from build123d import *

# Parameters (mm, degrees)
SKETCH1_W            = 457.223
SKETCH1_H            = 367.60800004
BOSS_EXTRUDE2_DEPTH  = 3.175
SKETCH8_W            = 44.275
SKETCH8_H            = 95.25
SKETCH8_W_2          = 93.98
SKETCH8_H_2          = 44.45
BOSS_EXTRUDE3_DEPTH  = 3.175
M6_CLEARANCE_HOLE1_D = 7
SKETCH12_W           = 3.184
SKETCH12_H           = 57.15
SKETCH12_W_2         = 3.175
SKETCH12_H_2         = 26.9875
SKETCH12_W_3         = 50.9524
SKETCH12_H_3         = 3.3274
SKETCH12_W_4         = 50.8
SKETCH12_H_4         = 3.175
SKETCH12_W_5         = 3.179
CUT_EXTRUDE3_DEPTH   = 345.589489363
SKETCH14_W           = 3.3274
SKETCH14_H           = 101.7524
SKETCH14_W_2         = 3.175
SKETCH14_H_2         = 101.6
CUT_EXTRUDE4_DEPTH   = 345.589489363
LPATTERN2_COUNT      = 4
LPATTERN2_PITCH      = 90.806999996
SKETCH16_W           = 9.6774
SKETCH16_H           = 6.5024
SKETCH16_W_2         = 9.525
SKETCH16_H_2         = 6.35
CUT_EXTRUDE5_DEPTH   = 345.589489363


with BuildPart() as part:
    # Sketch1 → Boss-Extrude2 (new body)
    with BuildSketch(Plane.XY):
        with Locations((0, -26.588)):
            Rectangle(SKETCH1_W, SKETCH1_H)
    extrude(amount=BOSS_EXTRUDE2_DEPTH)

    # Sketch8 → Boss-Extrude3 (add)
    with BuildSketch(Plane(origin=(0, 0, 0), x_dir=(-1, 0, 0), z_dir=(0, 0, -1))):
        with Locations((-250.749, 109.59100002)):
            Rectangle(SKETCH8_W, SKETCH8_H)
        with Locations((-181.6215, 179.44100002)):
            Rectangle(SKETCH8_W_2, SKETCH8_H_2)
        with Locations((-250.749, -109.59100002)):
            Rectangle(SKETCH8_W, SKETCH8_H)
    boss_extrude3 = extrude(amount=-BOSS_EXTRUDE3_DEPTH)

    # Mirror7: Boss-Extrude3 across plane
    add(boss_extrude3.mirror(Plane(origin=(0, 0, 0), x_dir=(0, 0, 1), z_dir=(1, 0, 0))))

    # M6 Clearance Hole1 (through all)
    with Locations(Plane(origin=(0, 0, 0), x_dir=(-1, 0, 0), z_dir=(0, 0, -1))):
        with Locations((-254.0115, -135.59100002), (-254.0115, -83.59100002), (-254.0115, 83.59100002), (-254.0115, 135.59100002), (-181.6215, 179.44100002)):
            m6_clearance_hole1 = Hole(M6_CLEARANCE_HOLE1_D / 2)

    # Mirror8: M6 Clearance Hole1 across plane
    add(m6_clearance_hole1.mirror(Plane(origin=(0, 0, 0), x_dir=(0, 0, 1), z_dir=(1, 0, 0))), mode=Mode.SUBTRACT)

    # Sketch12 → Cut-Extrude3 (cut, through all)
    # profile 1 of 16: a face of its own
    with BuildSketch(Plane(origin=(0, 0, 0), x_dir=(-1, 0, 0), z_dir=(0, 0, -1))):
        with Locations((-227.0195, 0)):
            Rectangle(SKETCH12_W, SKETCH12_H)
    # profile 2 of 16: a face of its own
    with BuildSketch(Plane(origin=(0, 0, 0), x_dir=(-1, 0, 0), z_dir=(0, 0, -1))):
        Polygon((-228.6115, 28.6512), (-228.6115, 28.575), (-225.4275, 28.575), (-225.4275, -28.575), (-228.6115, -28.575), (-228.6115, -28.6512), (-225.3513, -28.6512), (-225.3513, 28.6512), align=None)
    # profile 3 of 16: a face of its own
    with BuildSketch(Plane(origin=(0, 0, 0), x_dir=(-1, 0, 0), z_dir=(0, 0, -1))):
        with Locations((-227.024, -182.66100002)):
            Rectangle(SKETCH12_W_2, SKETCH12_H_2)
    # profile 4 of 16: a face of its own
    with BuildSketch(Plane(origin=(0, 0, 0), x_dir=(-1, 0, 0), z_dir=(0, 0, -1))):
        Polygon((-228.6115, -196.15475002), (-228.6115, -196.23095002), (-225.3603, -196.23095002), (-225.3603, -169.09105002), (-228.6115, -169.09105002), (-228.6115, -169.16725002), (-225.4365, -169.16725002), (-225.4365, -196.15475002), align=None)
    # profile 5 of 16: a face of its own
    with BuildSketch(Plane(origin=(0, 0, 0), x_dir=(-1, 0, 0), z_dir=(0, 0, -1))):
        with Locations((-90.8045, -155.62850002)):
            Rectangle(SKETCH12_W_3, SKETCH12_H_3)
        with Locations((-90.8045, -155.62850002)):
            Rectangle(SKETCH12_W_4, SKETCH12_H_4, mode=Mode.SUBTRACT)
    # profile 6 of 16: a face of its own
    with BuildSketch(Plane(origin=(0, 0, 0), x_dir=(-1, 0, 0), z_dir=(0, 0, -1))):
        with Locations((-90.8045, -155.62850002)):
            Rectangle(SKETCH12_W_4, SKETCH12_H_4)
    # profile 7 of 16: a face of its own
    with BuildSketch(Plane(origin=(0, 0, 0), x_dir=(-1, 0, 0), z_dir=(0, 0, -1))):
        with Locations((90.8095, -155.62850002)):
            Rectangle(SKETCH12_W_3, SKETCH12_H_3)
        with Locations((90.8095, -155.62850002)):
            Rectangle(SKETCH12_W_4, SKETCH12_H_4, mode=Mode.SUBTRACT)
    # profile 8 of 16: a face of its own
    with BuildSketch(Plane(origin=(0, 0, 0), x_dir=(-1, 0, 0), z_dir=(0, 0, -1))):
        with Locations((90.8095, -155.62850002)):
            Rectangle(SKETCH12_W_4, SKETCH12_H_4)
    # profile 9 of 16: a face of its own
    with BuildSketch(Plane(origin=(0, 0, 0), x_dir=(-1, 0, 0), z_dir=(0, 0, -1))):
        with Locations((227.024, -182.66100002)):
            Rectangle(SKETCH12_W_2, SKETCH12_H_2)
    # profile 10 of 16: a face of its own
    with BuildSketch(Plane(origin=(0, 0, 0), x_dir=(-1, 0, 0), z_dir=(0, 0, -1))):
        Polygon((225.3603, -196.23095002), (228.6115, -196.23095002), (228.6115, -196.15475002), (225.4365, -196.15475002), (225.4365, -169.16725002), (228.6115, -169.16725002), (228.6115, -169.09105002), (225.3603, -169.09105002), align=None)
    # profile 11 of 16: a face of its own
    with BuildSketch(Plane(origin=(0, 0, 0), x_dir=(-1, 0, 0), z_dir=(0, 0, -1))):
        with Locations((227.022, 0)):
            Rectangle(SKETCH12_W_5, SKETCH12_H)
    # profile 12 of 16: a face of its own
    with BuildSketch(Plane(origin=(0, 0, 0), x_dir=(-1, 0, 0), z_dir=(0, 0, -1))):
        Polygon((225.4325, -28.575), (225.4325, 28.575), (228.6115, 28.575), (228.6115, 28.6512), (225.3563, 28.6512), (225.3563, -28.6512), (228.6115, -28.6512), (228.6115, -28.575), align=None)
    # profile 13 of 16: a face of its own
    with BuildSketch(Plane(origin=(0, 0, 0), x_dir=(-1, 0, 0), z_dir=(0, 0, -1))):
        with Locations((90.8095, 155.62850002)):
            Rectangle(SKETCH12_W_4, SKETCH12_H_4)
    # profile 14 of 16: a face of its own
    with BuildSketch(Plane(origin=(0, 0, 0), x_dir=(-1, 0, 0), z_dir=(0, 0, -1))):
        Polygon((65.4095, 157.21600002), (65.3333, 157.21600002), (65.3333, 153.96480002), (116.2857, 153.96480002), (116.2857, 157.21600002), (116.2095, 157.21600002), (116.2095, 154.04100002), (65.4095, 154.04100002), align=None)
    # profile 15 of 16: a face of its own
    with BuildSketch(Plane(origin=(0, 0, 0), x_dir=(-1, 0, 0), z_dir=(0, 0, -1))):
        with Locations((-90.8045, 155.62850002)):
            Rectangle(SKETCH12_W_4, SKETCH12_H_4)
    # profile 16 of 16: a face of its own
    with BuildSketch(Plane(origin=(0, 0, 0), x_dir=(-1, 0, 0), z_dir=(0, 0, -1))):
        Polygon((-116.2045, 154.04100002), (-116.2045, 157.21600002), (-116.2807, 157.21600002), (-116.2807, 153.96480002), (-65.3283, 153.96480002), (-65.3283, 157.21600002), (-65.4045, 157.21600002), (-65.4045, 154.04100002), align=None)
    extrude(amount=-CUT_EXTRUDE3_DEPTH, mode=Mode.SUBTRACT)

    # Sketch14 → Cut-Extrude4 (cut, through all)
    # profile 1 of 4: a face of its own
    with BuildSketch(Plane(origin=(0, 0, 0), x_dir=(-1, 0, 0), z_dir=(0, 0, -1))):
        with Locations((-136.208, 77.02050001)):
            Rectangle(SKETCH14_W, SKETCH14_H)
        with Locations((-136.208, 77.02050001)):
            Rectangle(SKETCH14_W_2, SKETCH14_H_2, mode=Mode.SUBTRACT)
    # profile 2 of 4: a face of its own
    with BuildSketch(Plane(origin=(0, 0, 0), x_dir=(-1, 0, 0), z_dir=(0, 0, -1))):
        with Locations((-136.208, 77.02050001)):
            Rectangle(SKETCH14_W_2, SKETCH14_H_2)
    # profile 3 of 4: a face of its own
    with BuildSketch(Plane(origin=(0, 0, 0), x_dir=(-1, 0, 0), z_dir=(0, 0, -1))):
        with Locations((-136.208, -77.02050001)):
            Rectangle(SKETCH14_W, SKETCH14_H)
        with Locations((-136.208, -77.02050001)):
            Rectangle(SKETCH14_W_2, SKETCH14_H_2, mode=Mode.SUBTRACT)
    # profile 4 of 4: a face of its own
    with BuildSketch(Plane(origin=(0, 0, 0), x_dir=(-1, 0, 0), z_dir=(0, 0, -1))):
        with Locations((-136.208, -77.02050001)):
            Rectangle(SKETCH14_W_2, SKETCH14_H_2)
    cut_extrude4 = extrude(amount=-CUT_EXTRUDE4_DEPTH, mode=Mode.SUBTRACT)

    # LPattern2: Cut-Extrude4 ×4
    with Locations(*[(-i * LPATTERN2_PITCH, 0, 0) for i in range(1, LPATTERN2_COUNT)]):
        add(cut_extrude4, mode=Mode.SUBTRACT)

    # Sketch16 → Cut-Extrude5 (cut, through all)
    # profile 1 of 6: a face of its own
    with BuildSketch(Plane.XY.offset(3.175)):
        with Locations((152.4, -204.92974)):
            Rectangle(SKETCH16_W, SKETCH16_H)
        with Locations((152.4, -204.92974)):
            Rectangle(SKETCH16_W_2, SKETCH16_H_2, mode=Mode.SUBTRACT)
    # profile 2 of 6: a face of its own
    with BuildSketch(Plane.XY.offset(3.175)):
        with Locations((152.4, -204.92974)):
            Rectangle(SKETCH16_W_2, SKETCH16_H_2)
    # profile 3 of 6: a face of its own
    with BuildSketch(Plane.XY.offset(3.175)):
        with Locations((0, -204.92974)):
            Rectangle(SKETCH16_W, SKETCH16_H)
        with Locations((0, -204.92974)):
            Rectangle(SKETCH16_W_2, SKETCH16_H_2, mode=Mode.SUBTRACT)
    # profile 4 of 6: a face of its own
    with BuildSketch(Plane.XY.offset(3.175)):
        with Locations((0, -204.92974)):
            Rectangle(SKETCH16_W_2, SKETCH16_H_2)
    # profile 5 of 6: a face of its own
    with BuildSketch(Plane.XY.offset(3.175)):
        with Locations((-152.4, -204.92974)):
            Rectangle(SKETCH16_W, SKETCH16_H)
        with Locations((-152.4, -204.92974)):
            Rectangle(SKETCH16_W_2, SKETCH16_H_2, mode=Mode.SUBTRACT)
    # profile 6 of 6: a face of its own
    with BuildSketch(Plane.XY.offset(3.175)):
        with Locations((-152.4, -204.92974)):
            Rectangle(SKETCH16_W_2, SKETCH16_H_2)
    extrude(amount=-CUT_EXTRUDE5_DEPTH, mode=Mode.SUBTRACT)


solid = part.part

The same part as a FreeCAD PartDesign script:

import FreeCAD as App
import Part
import Sketcher
from FreeCAD import Vector
Q = App.Units.Quantity

doc = App.newDocument("Part")
body = doc.addObject("PartDesign::Body", "Body")

sketch1 = doc.addObject("Sketcher::SketchObject", "Sketch")
body.addObject(sketch1)
sketch1.AttachmentSupport = (doc.XY_Plane, [""])
sketch1.MapMode = "FlatFace"
sketch1.addGeometry([
    Part.LineSegment(Vector(-229, 157, 0), Vector(-229, -210, 0)),
    Part.LineSegment(Vector(-229, -210, 0), Vector(229, -210, 0)),
    Part.LineSegment(Vector(229, -210, 0), Vector(229, 157, 0)),
    Part.LineSegment(Vector(229, 157, 0), Vector(-229, 157, 0)),
], False)
sketch1.addConstraint([
    Sketcher.Constraint("Coincident", 0, 2, 1, 1),
    Sketcher.Constraint("Coincident", 1, 2, 2, 1),
    Sketcher.Constraint("Coincident", 2, 2, 3, 1),
    Sketcher.Constraint("Coincident", 3, 2, 0, 1),
    Sketcher.Constraint("Vertical", 0),
    Sketcher.Constraint("Horizontal", 1),
    Sketcher.Constraint("Vertical", 2),
    Sketcher.Constraint("Horizontal", 3),
    Sketcher.Constraint("DistanceX", 1, 1, 1, 2, Q("457.223 mm")),
    Sketcher.Constraint("DistanceY", 0, 2, 0, 1, Q("367.608 mm")),
    Sketcher.Constraint("DistanceX", 0, 2, -1, 1, Q("228.6115 mm")),
    Sketcher.Constraint("DistanceY", 0, 2, -1, 1, Q("210.392 mm")),
])
pad1 = doc.addObject("PartDesign::Pad", "Pad")
body.addObject(pad1)
pad1.Profile = sketch1
pad1.Length = Q("0.125 in")

sketch2 = doc.addObject("Sketcher::SketchObject", "Sketch001")
body.addObject(sketch2)
sketch2.AttachmentSupport = (doc.XY_Plane, [""])
sketch2.MapMode = "FlatFace"
sketch2.addGeometry([
    Part.LineSegment(Vector(273, 157, 0), Vector(273, 62, 0)),
    Part.LineSegment(Vector(273, 62, 0), Vector(229, 62, 0)),
    Part.LineSegment(Vector(229, 62, 0), Vector(229, 157, 0)),
    Part.LineSegment(Vector(229, 157, 0), Vector(273, 157, 0)),
    Part.LineSegment(Vector(229, 202, 0), Vector(229, 157, 0)),
    Part.LineSegment(Vector(229, 157, 0), Vector(135, 157, 0)),
    Part.LineSegment(Vector(135, 157, 0), Vector(135, 202, 0)),
    Part.LineSegment(Vector(135, 202, 0), Vector(229, 202, 0)),
    Part.LineSegment(Vector(273, -62, 0), Vector(273, -157, 0)),
    Part.LineSegment(Vector(273, -157, 0), Vector(229, -157, 0)),
    Part.LineSegment(Vector(229, -157, 0), Vector(229, -62, 0)),
    Part.LineSegment(Vector(229, -62, 0), Vector(273, -62, 0)),
], False)
sketch2.addConstraint([
    Sketcher.Constraint("Coincident", 0, 2, 1, 1),
    Sketcher.Constraint("Coincident", 1, 2, 2, 1),
    Sketcher.Constraint("Coincident", 2, 2, 3, 1),
    Sketcher.Constraint("Coincident", 3, 2, 0, 1),
    Sketcher.Constraint("Coincident", 4, 2, 5, 1),
    Sketcher.Constraint("Coincident", 5, 2, 6, 1),
    Sketcher.Constraint("Coincident", 6, 2, 7, 1),
    Sketcher.Constraint("Coincident", 7, 2, 4, 1),
    Sketcher.Constraint("Coincident", 8, 2, 9, 1),
    Sketcher.Constraint("Coincident", 9, 2, 10, 1),
    Sketcher.Constraint("Coincident", 10, 2, 11, 1),
    Sketcher.Constraint("Coincident", 11, 2, 8, 1),
    Sketcher.Constraint("Vertical", 0),
    Sketcher.Constraint("Horizontal", 1),
    Sketcher.Constraint("Vertical", 2),
    Sketcher.Constraint("Horizontal", 3),
    Sketcher.Constraint("Vertical", 4),
    Sketcher.Constraint("Horizontal", 5),
    Sketcher.Constraint("Vertical", 6),
    Sketcher.Constraint("Horizontal", 7),
    Sketcher.Constraint("Vertical", 8),
    Sketcher.Constraint("Horizontal", 9),
    Sketcher.Constraint("Vertical", 10),
    Sketcher.Constraint("Horizontal", 11),
    Sketcher.Constraint("Coincident", 4, 2, 2, 2),
    Sketcher.Constraint("Symmetric", 3, 2, 8, 2, -1),
    Sketcher.Constraint("Symmetric", 1, 2, 10, 2, -1),
    Sketcher.Constraint("DistanceX", 5, 2, 5, 1, Q("3.7 in")),
    Sketcher.Constraint("DistanceY", 0, 2, 0, 1, Q("3.75 in")),
    Sketcher.Constraint("DistanceY", 4, 2, 4, 1, Q("1.75 in")),
    Sketcher.Constraint("DistanceX", 1, 2, 1, 1, Q("44.275 mm")),
    Sketcher.Constraint("DistanceX", -1, 1, 0, 2, Q("272.8865 mm")),
    Sketcher.Constraint("DistanceY", -1, 1, 0, 2, Q("61.966 mm")),
])
pad2 = doc.addObject("PartDesign::Pad", "Pad001")
body.addObject(pad2)
pad2.Profile = sketch2
pad2.Length = Q("0.125 in")
doc.recompute()

mirrored = doc.addObject("PartDesign::Mirrored", "Mirrored")
body.addObject(mirrored)
mirrored.Originals = [pad2]
mirrored.MirrorPlane = (doc.YZ_Plane, [""])
body.Tip = mirrored

sketch3 = doc.addObject("Sketcher::SketchObject", "Sketch002")
body.addObject(sketch3)
sketch3.AttachmentSupport = (doc.XY_Plane, [""])
sketch3.MapMode = "FlatFace"
sketch3.addGeometry([
    Part.Circle(Vector(254, -135.6, 0), Vector(0, 0, 1), 3.5),
    Part.Circle(Vector(254, -83.6, 0), Vector(0, 0, 1), 3.5),
    Part.Circle(Vector(254, 83.6, 0), Vector(0, 0, 1), 3.5),
    Part.Circle(Vector(254, 135.6, 0), Vector(0, 0, 1), 3.5),
    Part.Circle(Vector(181.6, 179.4, 0), Vector(0, 0, 1), 3.5),
], False)
sketch3.addConstraint([
    Sketcher.Constraint("Equal", 0, 1),
    Sketcher.Constraint("Equal", 1, 2),
    Sketcher.Constraint("Equal", 2, 3),
    Sketcher.Constraint("Equal", 3, 4),
    Sketcher.Constraint("Symmetric", 1, 3, 2, 3, -1),
    Sketcher.Constraint("Symmetric", 0, 3, 3, 3, -1),
    Sketcher.Constraint("Vertical", 0, 3, 1, 3),
    Sketcher.Constraint("Diameter", 0, Q("7 mm")),
    Sketcher.Constraint("DistanceX", 4, 3, 3, 3, Q("2.85 in")),
    Sketcher.Constraint("DistanceX", -1, 1, 0, 3, Q("254.0115 mm")),
    Sketcher.Constraint("DistanceY", 0, 3, -1, 1, Q("135.591 mm")),
    Sketcher.Constraint("DistanceY", 1, 3, -1, 1, Q("83.591 mm")),
    Sketcher.Constraint("DistanceY", -1, 1, 4, 3, Q("179.441 mm")),
])
doc.recompute()
hole = doc.addObject("PartDesign::Hole", "Hole")
body.addObject(hole)
hole.Profile = sketch3
hole.ThreadType = "None"
hole.Diameter = 7
hole.DepthType = "ThroughAll"
hole.Reversed = True
doc.recompute()

mirrored2 = doc.addObject("PartDesign::Mirrored", "Mirrored001")
body.addObject(mirrored2)
mirrored2.Originals = [hole]
mirrored2.MirrorPlane = (doc.YZ_Plane, [""])
body.Tip = mirrored2

sketch4 = doc.addObject("Sketcher::SketchObject", "Sketch003")
body.addObject(sketch4)
sketch4.AttachmentSupport = (doc.XY_Plane, [""])
sketch4.MapMode = "FlatFace"
sketch4.addGeometry([
    Part.LineSegment(Vector(228.6, -28.7, 0), Vector(225.4, -28.7, 0)),
    Part.LineSegment(Vector(225.4, -28.7, 0), Vector(225.4, 28.7, 0)),
    Part.LineSegment(Vector(225.4, 28.7, 0), Vector(228.6, 28.7, 0)),
    Part.LineSegment(Vector(228.6, 28.7, 0), Vector(228.6, -28.7, 0)),
    Part.LineSegment(Vector(228.6, -196.2, 0), Vector(225.4, -196.2, 0)),
    Part.LineSegment(Vector(225.4, -196.2, 0), Vector(225.4, -169.1, 0)),
    Part.LineSegment(Vector(225.4, -169.1, 0), Vector(228.6, -169.1, 0)),
    Part.LineSegment(Vector(228.6, -169.1, 0), Vector(228.6, -196.2, 0)),
    Part.LineSegment(Vector(116.3, -154, 0), Vector(116.3, -157.3, 0)),
    Part.LineSegment(Vector(116.3, -157.3, 0), Vector(65.3, -157.3, 0)),
    Part.LineSegment(Vector(65.3, -157.3, 0), Vector(65.3, -154, 0)),
    Part.LineSegment(Vector(65.3, -154, 0), Vector(116.3, -154, 0)),
    Part.LineSegment(Vector(-65.3, -154, 0), Vector(-65.3, -157.3, 0)),
    Part.LineSegment(Vector(-65.3, -157.3, 0), Vector(-116.3, -157.3, 0)),
    Part.LineSegment(Vector(-116.3, -157.3, 0), Vector(-116.3, -154, 0)),
    Part.LineSegment(Vector(-116.3, -154, 0), Vector(-65.3, -154, 0)),
    Part.LineSegment(Vector(-228.6, -169.1, 0), Vector(-225.4, -169.1, 0)),
    Part.LineSegment(Vector(-225.4, -169.1, 0), Vector(-225.4, -196.2, 0)),
    Part.LineSegment(Vector(-225.4, -196.2, 0), Vector(-228.6, -196.2, 0)),
    Part.LineSegment(Vector(-228.6, -196.2, 0), Vector(-228.6, -169.1, 0)),
    Part.LineSegment(Vector(-228.6, 28.7, 0), Vector(-225.4, 28.7, 0)),
    Part.LineSegment(Vector(-225.4, 28.7, 0), Vector(-225.4, -28.7, 0)),
    Part.LineSegment(Vector(-225.4, -28.7, 0), Vector(-228.6, -28.7, 0)),
    Part.LineSegment(Vector(-228.6, -28.7, 0), Vector(-228.6, 28.7, 0)),
    Part.LineSegment(Vector(-65.3, 157.2, 0), Vector(-65.3, 154, 0)),
    Part.LineSegment(Vector(-65.3, 154, 0), Vector(-116.3, 154, 0)),
    Part.LineSegment(Vector(-116.3, 154, 0), Vector(-116.3, 157.2, 0)),
    Part.LineSegment(Vector(-116.3, 157.2, 0), Vector(-65.3, 157.2, 0)),
    Part.LineSegment(Vector(116.3, 157.2, 0), Vector(116.3, 154, 0)),
    Part.LineSegment(Vector(116.3, 154, 0), Vector(65.3, 154, 0)),
    Part.LineSegment(Vector(65.3, 154, 0), Vector(65.3, 157.2, 0)),
    Part.LineSegment(Vector(65.3, 157.2, 0), Vector(116.3, 157.2, 0)),
], False)
sketch4.addConstraint([
    Sketcher.Constraint("Coincident", 0, 2, 1, 1),
    Sketcher.Constraint("Coincident", 1, 2, 2, 1),
    Sketcher.Constraint("Coincident", 2, 2, 3, 1),
    Sketcher.Constraint("Coincident", 3, 2, 0, 1),
    Sketcher.Constraint("Coincident", 4, 2, 5, 1),
    Sketcher.Constraint("Coincident", 5, 2, 6, 1),
    Sketcher.Constraint("Coincident", 6, 2, 7, 1),
    Sketcher.Constraint("Coincident", 7, 2, 4, 1),
    Sketcher.Constraint("Coincident", 8, 2, 9, 1),
    Sketcher.Constraint("Coincident", 9, 2, 10, 1),
    Sketcher.Constraint("Coincident", 10, 2, 11, 1),
    Sketcher.Constraint("Coincident", 11, 2, 8, 1),
    Sketcher.Constraint("Coincident", 12, 2, 13, 1),
    Sketcher.Constraint("Coincident", 13, 2, 14, 1),
    Sketcher.Constraint("Coincident", 14, 2, 15, 1),
    Sketcher.Constraint("Coincident", 15, 2, 12, 1),
    Sketcher.Constraint("Coincident", 16, 2, 17, 1),
    Sketcher.Constraint("Coincident", 17, 2, 18, 1),
    Sketcher.Constraint("Coincident", 18, 2, 19, 1),
    Sketcher.Constraint("Coincident", 19, 2, 16, 1),
    Sketcher.Constraint("Coincident", 20, 2, 21, 1),
    Sketcher.Constraint("Coincident", 21, 2, 22, 1),
    Sketcher.Constraint("Coincident", 22, 2, 23, 1),
    Sketcher.Constraint("Coincident", 23, 2, 20, 1),
    Sketcher.Constraint("Coincident", 24, 2, 25, 1),
    Sketcher.Constraint("Coincident", 25, 2, 26, 1),
    Sketcher.Constraint("Coincident", 26, 2, 27, 1),
    Sketcher.Constraint("Coincident", 27, 2, 24, 1),
    Sketcher.Constraint("Coincident", 28, 2, 29, 1),
    Sketcher.Constraint("Coincident", 29, 2, 30, 1),
    Sketcher.Constraint("Coincident", 30, 2, 31, 1),
    Sketcher.Constraint("Coincident", 31, 2, 28, 1),
    Sketcher.Constraint("Horizontal", 0),
    Sketcher.Constraint("Vertical", 1),
    Sketcher.Constraint("Horizontal", 2),
    Sketcher.Constraint("Vertical", 3),
    Sketcher.Constraint("Horizontal", 4),
    Sketcher.Constraint("Vertical", 5),
    Sketcher.Constraint("Horizontal", 6),
    Sketcher.Constraint("Vertical", 7),
    Sketcher.Constraint("Vertical", 8),
    Sketcher.Constraint("Horizontal", 9),
    Sketcher.Constraint("Vertical", 10),
    Sketcher.Constraint("Horizontal", 11),
    Sketcher.Constraint("Vertical", 12),
    Sketcher.Constraint("Horizontal", 13),
    Sketcher.Constraint("Vertical", 14),
    Sketcher.Constraint("Horizontal", 15),
    Sketcher.Constraint("Horizontal", 16),
    Sketcher.Constraint("Vertical", 17),
    Sketcher.Constraint("Horizontal", 18),
    Sketcher.Constraint("Vertical", 19),
    Sketcher.Constraint("Horizontal", 20),
    Sketcher.Constraint("Vertical", 21),
    Sketcher.Constraint("Horizontal", 22),
    Sketcher.Constraint("Vertical", 23),
    Sketcher.Constraint("Vertical", 24),
    Sketcher.Constraint("Horizontal", 25),
    Sketcher.Constraint("Vertical", 26),
    Sketcher.Constraint("Horizontal", 27),
    Sketcher.Constraint("Vertical", 28),
    Sketcher.Constraint("Horizontal", 29),
    Sketcher.Constraint("Vertical", 30),
    Sketcher.Constraint("Horizontal", 31),
    Sketcher.Constraint("Symmetric", 2, 2, 22, 2, -1, 1),
    Sketcher.Constraint("Symmetric", 5, 2, 16, 2, -2),
    Sketcher.Constraint("Symmetric", 7, 2, 18, 2, -2),
    Sketcher.Constraint("Symmetric", 15, 2, 24, 2, -1),
    Sketcher.Constraint("Symmetric", 11, 2, 28, 2, -1),
    Sketcher.Constraint("Horizontal", 9, 2, 12, 2),
    Sketcher.Constraint("Horizontal", 11, 2, 14, 2),
    Sketcher.Constraint("Horizontal", 2, 2, 20, 2),
    Sketcher.Constraint("Horizontal", 3, 2, 21, 2),
    Sketcher.Constraint("Horizontal", 27, 2, 30, 2),
    Sketcher.Constraint("Vertical", 3, 2, 6, 2),
    Sketcher.Constraint("Vertical", 14, 2, 25, 2),
    Sketcher.Constraint("Vertical", 10, 2, 29, 2),
    Sketcher.Constraint("Equal", 11, 13),
    Sketcher.Constraint("Equal", 18, 24),
    Sketcher.Constraint("DistanceX", 4, 2, 4, 1, Q("0.128 in")),
    Sketcher.Constraint("DistanceX", 9, 2, 9, 1, Q("2.006 in")),
    Sketcher.Constraint("DistanceY", 1, 1, 1, 2, Q("2.256 in")),
    Sketcher.Constraint("DistanceY", 8, 2, 8, 1, Q("0.131 in")),
    Sketcher.Constraint("DistanceY", 5, 1, 5, 2, Q("1.0685 in")),
    Sketcher.Constraint("DistanceX", 0, 2, 0, 1, Q("3.2602 mm")),
    Sketcher.Constraint("DistanceX", 20, 1, 20, 2, Q("3.2552 mm")),
    Sketcher.Constraint("DistanceX", -1, 1, 0, 2, Q("225.3513 mm")),
    Sketcher.Constraint("DistanceX", -1, 1, 8, 2, Q("116.2807 mm")),
    Sketcher.Constraint("DistanceY", 8, 2, -1, 1, Q("157.2922 mm")),
    Sketcher.Constraint("DistanceX", 12, 2, -1, 1, Q("65.3333 mm")),
    Sketcher.Constraint("DistanceY", 4, 2, -1, 1, Q("196.23095 mm")),
])
pocket1 = doc.addObject("PartDesign::Pocket", "Pocket")
body.addObject(pocket1)
pocket1.Profile = sketch4
pocket1.Length = 345.589489
pocket1.Reversed = True

sketch5 = doc.addObject("Sketcher::SketchObject", "Sketch004")
body.addObject(sketch5)
sketch5.AttachmentSupport = (doc.XY_Plane, [""])
sketch5.MapMode = "FlatFace"
sketch5.addGeometry([
    Part.LineSegment(Vector(137.9, 127.9, 0), Vector(137.9, 26.1, 0)),
    Part.LineSegment(Vector(137.9, 26.1, 0), Vector(134.5, 26.1, 0)),
    Part.LineSegment(Vector(134.5, 26.1, 0), Vector(134.5, 127.9, 0)),
    Part.LineSegment(Vector(134.5, 127.9, 0), Vector(137.9, 127.9, 0)),
    Part.LineSegment(Vector(137.9, -26.1, 0), Vector(137.9, -127.9, 0)),
    Part.LineSegment(Vector(137.9, -127.9, 0), Vector(134.5, -127.9, 0)),
    Part.LineSegment(Vector(134.5, -127.9, 0), Vector(134.5, -26.1, 0)),
    Part.LineSegment(Vector(134.5, -26.1, 0), Vector(137.9, -26.1, 0)),
], False)
sketch5.addConstraint([
    Sketcher.Constraint("Coincident", 0, 2, 1, 1),
    Sketcher.Constraint("Coincident", 1, 2, 2, 1),
    Sketcher.Constraint("Coincident", 2, 2, 3, 1),
    Sketcher.Constraint("Coincident", 3, 2, 0, 1),
    Sketcher.Constraint("Coincident", 4, 2, 5, 1),
    Sketcher.Constraint("Coincident", 5, 2, 6, 1),
    Sketcher.Constraint("Coincident", 6, 2, 7, 1),
    Sketcher.Constraint("Coincident", 7, 2, 4, 1),
    Sketcher.Constraint("Vertical", 0),
    Sketcher.Constraint("Horizontal", 1),
    Sketcher.Constraint("Vertical", 2),
    Sketcher.Constraint("Horizontal", 3),
    Sketcher.Constraint("Vertical", 4),
    Sketcher.Constraint("Horizontal", 5),
    Sketcher.Constraint("Vertical", 6),
    Sketcher.Constraint("Horizontal", 7),
    Sketcher.Constraint("Symmetric", 3, 2, 4, 2, -1),
    Sketcher.Constraint("Symmetric", 1, 2, 6, 2, -1),
    Sketcher.Constraint("DistanceX", 1, 2, 1, 1, Q("0.131 in")),
    Sketcher.Constraint("DistanceY", 0, 2, 0, 1, Q("4.006 in")),
    Sketcher.Constraint("DistanceX", -1, 1, 0, 2, Q("137.8717 mm")),
    Sketcher.Constraint("DistanceY", -1, 1, 0, 2, Q("26.1443 mm")),
])
pocket2 = doc.addObject("PartDesign::Pocket", "Pocket001")
body.addObject(pocket2)
pocket2.Profile = sketch5
pocket2.Length = 345.589489
pocket2.Reversed = True
doc.recompute()

linearpattern = doc.addObject("PartDesign::LinearPattern", "LinearPattern")
body.addObject(linearpattern)
linearpattern.Originals = [pocket2]
linearpattern.Direction = (doc.X_Axis, [""])
linearpattern.Mode = "offset"
linearpattern.Offset = 90.807
linearpattern.Occurrences = 4
linearpattern.Reversed = True
body.Tip = linearpattern

sketch6 = doc.addObject("Sketcher::SketchObject", "Sketch005")
body.addObject(sketch6)
sketch6.AttachmentSupport = (doc.XY_Plane, [""])
sketch6.MapMode = "FlatFace"
sketch6.AttachmentOffset = App.Placement(Vector(0, 0, 0.125 * 25.4), App.Rotation())
sketch6.addGeometry([
    Part.LineSegment(Vector(148, -202, 0), Vector(148, -208, 0)),
    Part.LineSegment(Vector(148, -208, 0), Vector(157, -208, 0)),
    Part.LineSegment(Vector(157, -208, 0), Vector(157, -202, 0)),
    Part.LineSegment(Vector(157, -202, 0), Vector(148, -202, 0)),
    Part.LineSegment(Vector(-5, -202, 0), Vector(-5, -208, 0)),
    Part.LineSegment(Vector(-5, -208, 0), Vector(5, -208, 0)),
    Part.LineSegment(Vector(5, -208, 0), Vector(5, -202, 0)),
    Part.LineSegment(Vector(5, -202, 0), Vector(-5, -202, 0)),
    Part.LineSegment(Vector(-157, -202, 0), Vector(-157, -208, 0)),
    Part.LineSegment(Vector(-157, -208, 0), Vector(-148, -208, 0)),
    Part.LineSegment(Vector(-148, -208, 0), Vector(-148, -202, 0)),
    Part.LineSegment(Vector(-148, -202, 0), Vector(-157, -202, 0)),
], False)
sketch6.addConstraint([
    Sketcher.Constraint("Coincident", 0, 2, 1, 1),
    Sketcher.Constraint("Coincident", 1, 2, 2, 1),
    Sketcher.Constraint("Coincident", 2, 2, 3, 1),
    Sketcher.Constraint("Coincident", 3, 2, 0, 1),
    Sketcher.Constraint("Coincident", 4, 2, 5, 1),
    Sketcher.Constraint("Coincident", 5, 2, 6, 1),
    Sketcher.Constraint("Coincident", 6, 2, 7, 1),
    Sketcher.Constraint("Coincident", 7, 2, 4, 1),
    Sketcher.Constraint("Coincident", 8, 2, 9, 1),
    Sketcher.Constraint("Coincident", 9, 2, 10, 1),
    Sketcher.Constraint("Coincident", 10, 2, 11, 1),
    Sketcher.Constraint("Coincident", 11, 2, 8, 1),
    Sketcher.Constraint("Vertical", 0),
    Sketcher.Constraint("Horizontal", 1),
    Sketcher.Constraint("Vertical", 2),
    Sketcher.Constraint("Horizontal", 3),
    Sketcher.Constraint("Vertical", 4),
    Sketcher.Constraint("Horizontal", 5),
    Sketcher.Constraint("Vertical", 6),
    Sketcher.Constraint("Horizontal", 7),
    Sketcher.Constraint("Vertical", 8),
    Sketcher.Constraint("Horizontal", 9),
    Sketcher.Constraint("Vertical", 10),
    Sketcher.Constraint("Horizontal", 11),
    Sketcher.Constraint("Symmetric", 1, 2, 8, 2, -2),
    Sketcher.Constraint("Symmetric", 3, 2, 10, 2, -2),
    Sketcher.Constraint("Horizontal", 1, 2, 4, 2),
    Sketcher.Constraint("Horizontal", 3, 2, 6, 2),
    Sketcher.Constraint("Equal", 3, 5),
    Sketcher.Constraint("DistanceX", 4, 2, 0, 2, Q("6 in")),
    Sketcher.Constraint("DistanceX", 8, 2, 4, 2, Q("6 in")),
    Sketcher.Constraint("DistanceX", 1, 1, 1, 2, Q("0.381 in")),
    Sketcher.Constraint("DistanceY", 0, 2, 0, 1, Q("0.256 in")),
    Sketcher.Constraint("DistanceY", 0, 2, -1, 1, Q("8.1961 in")),
])
pocket3 = doc.addObject("PartDesign::Pocket", "Pocket002")
body.addObject(pocket3)
pocket3.Profile = sketch6
pocket3.Length = 345.589489

doc.recompute()
